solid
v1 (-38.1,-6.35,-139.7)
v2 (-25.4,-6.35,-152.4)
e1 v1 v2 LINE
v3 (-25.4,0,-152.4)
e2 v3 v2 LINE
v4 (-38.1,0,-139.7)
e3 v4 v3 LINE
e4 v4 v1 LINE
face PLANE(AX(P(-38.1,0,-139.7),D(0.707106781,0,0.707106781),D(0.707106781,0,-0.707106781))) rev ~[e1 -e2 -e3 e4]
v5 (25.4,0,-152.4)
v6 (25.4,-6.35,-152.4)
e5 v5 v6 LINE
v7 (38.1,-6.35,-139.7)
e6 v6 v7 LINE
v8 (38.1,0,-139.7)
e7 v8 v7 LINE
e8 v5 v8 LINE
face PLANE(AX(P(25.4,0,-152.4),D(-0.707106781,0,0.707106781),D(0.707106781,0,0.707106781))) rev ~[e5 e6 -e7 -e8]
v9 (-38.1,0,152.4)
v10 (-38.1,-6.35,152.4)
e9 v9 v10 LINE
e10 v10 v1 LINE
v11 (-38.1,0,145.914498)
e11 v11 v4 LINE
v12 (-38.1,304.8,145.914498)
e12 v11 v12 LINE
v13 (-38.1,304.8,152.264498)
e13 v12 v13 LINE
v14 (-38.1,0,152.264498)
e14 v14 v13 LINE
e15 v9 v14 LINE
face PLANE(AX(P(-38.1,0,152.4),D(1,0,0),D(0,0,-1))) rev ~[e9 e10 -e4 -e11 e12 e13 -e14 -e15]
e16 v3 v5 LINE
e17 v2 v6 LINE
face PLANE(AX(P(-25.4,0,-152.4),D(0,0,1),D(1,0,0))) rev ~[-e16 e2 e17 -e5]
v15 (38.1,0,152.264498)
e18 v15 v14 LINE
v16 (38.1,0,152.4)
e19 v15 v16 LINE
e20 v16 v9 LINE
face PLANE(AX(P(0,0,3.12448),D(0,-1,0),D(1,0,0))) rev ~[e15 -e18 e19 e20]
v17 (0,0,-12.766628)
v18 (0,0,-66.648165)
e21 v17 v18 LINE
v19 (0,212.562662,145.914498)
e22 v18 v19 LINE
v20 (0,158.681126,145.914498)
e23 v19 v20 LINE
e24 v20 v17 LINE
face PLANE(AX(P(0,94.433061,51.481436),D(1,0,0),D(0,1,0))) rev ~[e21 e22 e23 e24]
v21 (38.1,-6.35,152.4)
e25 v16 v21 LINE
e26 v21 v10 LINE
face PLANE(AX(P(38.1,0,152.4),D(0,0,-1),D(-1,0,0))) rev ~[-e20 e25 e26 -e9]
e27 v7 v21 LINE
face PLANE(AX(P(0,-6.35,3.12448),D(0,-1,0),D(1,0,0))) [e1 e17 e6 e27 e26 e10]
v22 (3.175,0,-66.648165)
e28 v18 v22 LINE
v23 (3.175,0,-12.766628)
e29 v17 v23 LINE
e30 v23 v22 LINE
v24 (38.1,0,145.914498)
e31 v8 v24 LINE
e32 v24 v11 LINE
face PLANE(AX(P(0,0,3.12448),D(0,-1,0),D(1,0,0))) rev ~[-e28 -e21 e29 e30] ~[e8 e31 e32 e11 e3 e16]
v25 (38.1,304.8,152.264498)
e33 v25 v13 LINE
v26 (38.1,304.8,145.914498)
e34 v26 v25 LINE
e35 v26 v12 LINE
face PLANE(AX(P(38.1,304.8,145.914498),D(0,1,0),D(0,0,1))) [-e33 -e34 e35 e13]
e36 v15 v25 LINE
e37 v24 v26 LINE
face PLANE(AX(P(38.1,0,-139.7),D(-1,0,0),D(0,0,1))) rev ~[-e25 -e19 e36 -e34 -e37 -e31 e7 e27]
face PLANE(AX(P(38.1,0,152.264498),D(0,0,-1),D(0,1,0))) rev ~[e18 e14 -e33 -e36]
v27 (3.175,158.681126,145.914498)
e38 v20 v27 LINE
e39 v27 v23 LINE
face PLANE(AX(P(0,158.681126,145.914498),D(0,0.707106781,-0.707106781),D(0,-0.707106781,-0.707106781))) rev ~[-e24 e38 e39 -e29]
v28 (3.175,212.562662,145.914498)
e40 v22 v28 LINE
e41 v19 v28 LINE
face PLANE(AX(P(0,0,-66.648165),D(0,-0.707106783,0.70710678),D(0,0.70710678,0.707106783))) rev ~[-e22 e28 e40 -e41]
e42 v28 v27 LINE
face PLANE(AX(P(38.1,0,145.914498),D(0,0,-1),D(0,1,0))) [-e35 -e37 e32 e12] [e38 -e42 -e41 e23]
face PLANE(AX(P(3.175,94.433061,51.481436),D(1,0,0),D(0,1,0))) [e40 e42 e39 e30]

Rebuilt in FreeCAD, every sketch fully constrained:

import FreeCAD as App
import Part
import Sketcher
Q = App.Units.Quantity


def add_polygon(sketch, points):
    """Adds a closed chain of lines whose ends are joined by coincident constraints."""
    first, n = sketch.GeometryCount, len(points)
    for a, b in zip(points, points[1:] + points[:1]):
        sketch.addGeometry(Part.LineSegment(App.Vector(*a, 0), App.Vector(*b, 0)), False)
    for i in range(n):
        sketch.addConstraint(Sketcher.Constraint("Coincident", first + i, 2, first + (i + 1) % n, 1))

doc = App.newDocument("Part")
body = doc.addObject("PartDesign::Body", "Body")

# Sketch on XZ plane
sketch1 = body.newObject("Sketcher::SketchObject", "Sketch")
sketch1.AttachmentSupport = (doc.getObject("XZ_Plane"), [""])
sketch1.MapMode = "FlatFace"
add_polygon(sketch1, [(-25.4, -152.4), (25.4, -152.4), (38.1, -139.7), (38.1, 152.4), (-38.1, 152.4), (-38.1, -139.7)])  # lines 0-5
sketch1.addConstraint(Sketcher.Constraint("Horizontal", 0))
sketch1.addConstraint(Sketcher.Constraint("Vertical", 2))
sketch1.addConstraint(Sketcher.Constraint("Horizontal", 3))
sketch1.addConstraint(Sketcher.Constraint("Vertical", 4))
sketch1.addConstraint(Sketcher.Constraint("Symmetric", 1, 2, 4, 2, -2))
sketch1.addConstraint(Sketcher.Constraint("Perpendicular", 1, 5))
sketch1.addConstraint(Sketcher.Constraint("Equal", 1, 5))
sketch1.addConstraint(Sketcher.Constraint("DistanceX", 0, 1, 0, 2, Q("2 in")))
sketch1.addConstraint(Sketcher.Constraint("DistanceX", 3, 2, 3, 1, Q("3 in")))
sketch1.addConstraint(Sketcher.Constraint("DistanceY", 2, 1, 2, 2, Q("11.5 in")))
sketch1.addConstraint(Sketcher.Constraint("DistanceY", 0, 2, -1, 1, Q("6 in")))
pad1 = body.newObject("PartDesign::Pad", "Pad")
pad1.Profile = sketch1
pad1.Length = Q("0.25 in")

# Sketch on YZ plane
sketch2 = body.newObject("Sketcher::SketchObject", "Sketch001")
sketch2.AttachmentSupport = (doc.getObject("YZ_Plane"), [""])
sketch2.MapMode = "FlatFace"
sketch2.AttachmentOffset = App.Placement(App.Vector(0, 0, 1.5 * 25.4), App.Rotation())
add_polygon(sketch2, [(0, 152.264498), (0, 145.914498), (304.8, 145.914498), (304.8, 152.264498)])  # lines 0-3
sketch2.addConstraint(Sketcher.Constraint("Vertical", 0))
sketch2.addConstraint(Sketcher.Constraint("Horizontal", 1))
sketch2.addConstraint(Sketcher.Constraint("Vertical", 2))
sketch2.addConstraint(Sketcher.Constraint("Horizontal", 3))
sketch2.addConstraint(Sketcher.Constraint("PointOnObject", 0, 2, -2))
sketch2.addConstraint(Sketcher.Constraint("DistanceX", 1, 1, 1, 2, Q("12 in")))
sketch2.addConstraint(Sketcher.Constraint("DistanceY", 0, 2, 0, 1, Q("0.25 in")))
sketch2.addConstraint(Sketcher.Constraint("DistanceY", -1, 1, 0, 2, Q("145.914498 mm")))
pad2 = body.newObject("PartDesign::Pad", "Pad001")
pad2.Profile = sketch2
pad2.Length = Q("3 in")
pad2.Reversed = True

# Sketch on YZ plane
sketch3 = body.newObject("Sketcher::SketchObject", "Sketch002")
sketch3.AttachmentSupport = (doc.getObject("YZ_Plane"), [""])
sketch3.MapMode = "FlatFace"
add_polygon(sketch3, [(0, -66.648165), (212.562662, 145.914498), (158.681126, 145.914498), (0, -12.766628)])  # lines 0-3
sketch3.addConstraint(Sketcher.Constraint("Horizontal", 1))
sketch3.addConstraint(Sketcher.Constraint("Vertical", 3))
sketch3.addConstraint(Sketcher.Constraint("PointOnObject", 2, 2, -2))
sketch3.addConstraint(Sketcher.Constraint("Parallel", 0, 2))
sketch3.addConstraint(Sketcher.Constraint("Equal", 1, 3))
sketch3.addConstraint(Sketcher.Constraint("Distance", 0, Q("11.835 in")))
sketch3.addConstraint(Sketcher.Constraint("Distance", 2, Q("8.835 in")))
sketch3.addConstraint(Sketcher.Constraint("DistanceY", -1, 1, 0, 2, Q("145.914498 mm")))
pad3 = body.newObject("PartDesign::Pad", "Pad002")
pad3.Profile = sketch3
pad3.Length = Q("0.125 in")

# Sketch on YZ plane
sketch4 = body.newObject("Sketcher::SketchObject", "Sketch003")
sketch4.AttachmentSupport = (doc.getObject("YZ_Plane"), [""])
sketch4.MapMode = "FlatFace"
add_polygon(sketch4, [(0, -66.648165), (212.562662, 145.914498), (158.681126, 145.914498), (0, -12.766628)])  # lines 0-3
sketch4.addConstraint(Sketcher.Constraint("Horizontal", 1))
sketch4.addConstraint(Sketcher.Constraint("Vertical", 3))
sketch4.addConstraint(Sketcher.Constraint("PointOnObject", 2, 2, -2))
sketch4.addConstraint(Sketcher.Constraint("Parallel", 0, 2))
sketch4.addConstraint(Sketcher.Constraint("Equal", 1, 3))
sketch4.addConstraint(Sketcher.Constraint("Distance", 0, Q("11.835 in")))
sketch4.addConstraint(Sketcher.Constraint("Distance", 2, Q("8.835 in")))
sketch4.addConstraint(Sketcher.Constraint("DistanceY", -1, 1, 0, 2, Q("145.914498 mm")))
pad4 = body.newObject("PartDesign::Pad", "Pad003")
pad4.Profile = sketch4
pad4.Length = Q("0.125 in")

doc.recompute()
